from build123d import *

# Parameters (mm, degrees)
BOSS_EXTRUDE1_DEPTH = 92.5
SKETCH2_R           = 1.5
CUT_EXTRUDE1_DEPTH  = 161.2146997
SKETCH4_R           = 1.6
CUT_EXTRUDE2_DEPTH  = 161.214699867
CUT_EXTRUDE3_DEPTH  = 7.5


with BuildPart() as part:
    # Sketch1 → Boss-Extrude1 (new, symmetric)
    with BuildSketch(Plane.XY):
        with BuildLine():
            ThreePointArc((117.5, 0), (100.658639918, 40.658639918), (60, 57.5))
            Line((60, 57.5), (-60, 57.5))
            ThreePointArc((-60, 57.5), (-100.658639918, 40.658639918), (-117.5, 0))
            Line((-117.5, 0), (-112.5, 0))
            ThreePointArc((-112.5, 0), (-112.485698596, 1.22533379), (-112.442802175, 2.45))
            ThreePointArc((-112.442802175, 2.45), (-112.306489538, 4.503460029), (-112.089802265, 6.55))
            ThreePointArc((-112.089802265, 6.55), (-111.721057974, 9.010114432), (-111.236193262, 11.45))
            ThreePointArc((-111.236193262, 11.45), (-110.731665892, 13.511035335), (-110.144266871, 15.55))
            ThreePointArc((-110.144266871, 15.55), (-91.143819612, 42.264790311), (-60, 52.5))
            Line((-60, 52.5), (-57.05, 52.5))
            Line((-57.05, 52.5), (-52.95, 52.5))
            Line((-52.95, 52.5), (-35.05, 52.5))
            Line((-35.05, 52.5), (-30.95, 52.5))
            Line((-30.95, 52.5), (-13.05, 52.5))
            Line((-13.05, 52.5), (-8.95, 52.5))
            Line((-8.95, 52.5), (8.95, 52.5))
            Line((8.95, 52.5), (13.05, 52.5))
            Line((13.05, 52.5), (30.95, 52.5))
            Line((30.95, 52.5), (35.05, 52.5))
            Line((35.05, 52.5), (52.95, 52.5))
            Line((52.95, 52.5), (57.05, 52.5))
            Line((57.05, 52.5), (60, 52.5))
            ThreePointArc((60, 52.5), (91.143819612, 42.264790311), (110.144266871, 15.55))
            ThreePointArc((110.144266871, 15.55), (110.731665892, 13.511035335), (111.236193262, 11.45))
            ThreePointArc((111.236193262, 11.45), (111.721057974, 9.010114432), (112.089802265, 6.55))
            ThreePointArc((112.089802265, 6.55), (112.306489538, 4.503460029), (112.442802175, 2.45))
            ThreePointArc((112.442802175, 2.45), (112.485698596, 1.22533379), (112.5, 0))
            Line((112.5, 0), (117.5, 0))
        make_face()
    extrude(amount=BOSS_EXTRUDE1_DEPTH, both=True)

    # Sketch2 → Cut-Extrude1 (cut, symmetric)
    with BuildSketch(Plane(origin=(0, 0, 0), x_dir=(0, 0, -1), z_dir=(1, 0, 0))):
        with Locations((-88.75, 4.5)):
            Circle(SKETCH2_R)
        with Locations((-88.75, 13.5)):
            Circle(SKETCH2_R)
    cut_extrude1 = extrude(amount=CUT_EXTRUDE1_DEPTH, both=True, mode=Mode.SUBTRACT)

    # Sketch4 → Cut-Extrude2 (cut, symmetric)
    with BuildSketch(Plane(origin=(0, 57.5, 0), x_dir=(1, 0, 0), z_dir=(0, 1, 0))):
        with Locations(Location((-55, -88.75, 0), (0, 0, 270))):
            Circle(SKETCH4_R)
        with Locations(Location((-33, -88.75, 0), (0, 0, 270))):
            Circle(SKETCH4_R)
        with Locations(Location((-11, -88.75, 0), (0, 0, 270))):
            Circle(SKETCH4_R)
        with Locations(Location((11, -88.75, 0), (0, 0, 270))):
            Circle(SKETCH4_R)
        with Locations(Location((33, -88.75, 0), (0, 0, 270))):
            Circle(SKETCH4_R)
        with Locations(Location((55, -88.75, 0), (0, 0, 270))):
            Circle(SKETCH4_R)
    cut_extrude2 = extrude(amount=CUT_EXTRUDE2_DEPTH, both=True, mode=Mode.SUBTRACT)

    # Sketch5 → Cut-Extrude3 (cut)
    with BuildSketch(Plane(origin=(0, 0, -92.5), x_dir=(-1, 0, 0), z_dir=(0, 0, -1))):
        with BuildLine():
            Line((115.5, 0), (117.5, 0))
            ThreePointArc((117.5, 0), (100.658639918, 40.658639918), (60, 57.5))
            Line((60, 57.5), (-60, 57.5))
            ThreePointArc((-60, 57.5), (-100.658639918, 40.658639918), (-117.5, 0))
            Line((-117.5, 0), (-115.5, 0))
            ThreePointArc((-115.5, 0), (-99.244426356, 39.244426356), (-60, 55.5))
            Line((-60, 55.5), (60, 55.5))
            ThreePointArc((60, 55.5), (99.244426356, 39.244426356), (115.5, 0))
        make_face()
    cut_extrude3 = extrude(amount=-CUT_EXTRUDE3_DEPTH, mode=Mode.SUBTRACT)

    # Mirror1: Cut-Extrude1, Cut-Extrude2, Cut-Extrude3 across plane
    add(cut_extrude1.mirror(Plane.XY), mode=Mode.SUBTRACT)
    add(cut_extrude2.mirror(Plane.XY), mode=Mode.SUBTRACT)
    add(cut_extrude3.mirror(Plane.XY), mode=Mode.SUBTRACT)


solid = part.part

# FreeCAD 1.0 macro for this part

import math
import FreeCAD as App
import Part
import Sketcher
Q = App.Units.Quantity

doc = App.newDocument("Part")
body = doc.addObject("PartDesign::Body", "Body")

sketch1 = doc.addObject("Sketcher::SketchObject", "Sketch")
body.addObject(sketch1)
sketch1.AttachmentSupport = (doc.XY_Plane, [""])
sketch1.MapMode = "FlatFace"
sketch1.addGeometry(Part.ArcOfCircle(Part.Circle(App.Vector(60, 0, 0), App.Vector(0, 0, 1), 57.5), math.radians(0), math.radians(90)), False)
sketch1.addGeometry(Part.LineSegment(App.Vector(60, 57.5, 0), App.Vector(-60, 57.5, 0)), False)
sketch1.addGeometry(Part.ArcOfCircle(Part.Circle(App.Vector(-60, 0, 0), App.Vector(0, 0, 1), 57.5), math.radians(90), math.radians(180)), False)
sketch1.addGeometry(Part.LineSegment(App.Vector(-117.5, 0, 0), App.Vector(-112.5, 0, 0)), False)
sketch1.addGeometry(Part.ArcOfCircle(Part.Circle(App.Vector(-60, 0, 0), App.Vector(0, 0, 1), 52.5), math.radians(177.33), math.radians(180)), False)
sketch1.addGeometry(Part.ArcOfCircle(Part.Circle(App.Vector(-60, 0, 0), App.Vector(0, 0, 1), 52.5), math.radians(172.83), math.radians(177.33)), False)
sketch1.addGeometry(Part.ArcOfCircle(Part.Circle(App.Vector(-60, 0, 0), App.Vector(0, 0, 1), 52.5), math.radians(167.4), math.radians(172.83)), False)
sketch1.addGeometry(Part.ArcOfCircle(Part.Circle(App.Vector(-60, 0, 0), App.Vector(0, 0, 1), 52.5), math.radians(162.77), math.radians(167.4)), False)
sketch1.addGeometry(Part.ArcOfCircle(Part.Circle(App.Vector(-60, 0, 0), App.Vector(0, 0, 1), 52.5), math.radians(90), math.radians(163)), False)
sketch1.addGeometry(Part.LineSegment(App.Vector(-60, 52.5, 0), App.Vector(60, 52.5, 0)), False)
sketch1.addGeometry(Part.ArcOfCircle(Part.Circle(App.Vector(60, 0, 0), App.Vector(0, 0, 1), 52.5), math.radians(17), math.radians(90)), False)
sketch1.addGeometry(Part.ArcOfCircle(Part.Circle(App.Vector(60, 0, 0), App.Vector(0, 0, 1), 52.5), math.radians(12.6), math.radians(17.23)), False)
sketch1.addGeometry(Part.ArcOfCircle(Part.Circle(App.Vector(60, 0, 0), App.Vector(0, 0, 1), 52.5), math.radians(7.17), math.radians(12.6)), False)
sketch1.addGeometry(Part.ArcOfCircle(Part.Circle(App.Vector(60, 0, 0), App.Vector(0, 0, 1), 52.5), math.radians(2.67), math.radians(7.17)), False)
sketch1.addGeometry(Part.ArcOfCircle(Part.Circle(App.Vector(60, 0, 0), App.Vector(0, 0, 1), 52.5), math.radians(0), math.radians(2.67)), False)
sketch1.addGeometry(Part.LineSegment(App.Vector(112.5, 0, 0), App.Vector(117.5, 0, 0)), False)
sketch1.addConstraint(Sketcher.Constraint("Tangent", 0, 2, 1, 1))
sketch1.addConstraint(Sketcher.Constraint("Tangent", 1, 2, 2, 1))
sketch1.addConstraint(Sketcher.Constraint("Coincident", 2, 2, 3, 1))
sketch1.addConstraint(Sketcher.Constraint("Coincident", 3, 2, 4, 2))
sketch1.addConstraint(Sketcher.Constraint("Tangent", 4, 1, 5, 2))
sketch1.addConstraint(Sketcher.Constraint("Tangent", 5, 1, 6, 2))
sketch1.addConstraint(Sketcher.Constraint("Tangent", 6, 1, 7, 2))
sketch1.addConstraint(Sketcher.Constraint("Tangent", 7, 1, 8, 2))
sketch1.addConstraint(Sketcher.Constraint("Tangent", 8, 1, 9, 1))
sketch1.addConstraint(Sketcher.Constraint("Tangent", 9, 2, 10, 2))
sketch1.addConstraint(Sketcher.Constraint("Tangent", 10, 1, 11, 2))
sketch1.addConstraint(Sketcher.Constraint("Tangent", 11, 1, 12, 2))
sketch1.addConstraint(Sketcher.Constraint("Tangent", 12, 1, 13, 2))
sketch1.addConstraint(Sketcher.Constraint("Tangent", 13, 1, 14, 2))
sketch1.addConstraint(Sketcher.Constraint("Coincident", 14, 1, 15, 1))
sketch1.addConstraint(Sketcher.Constraint("Coincident", 15, 2, 0, 1))
sketch1.addConstraint(Sketcher.Constraint("Horizontal", 1))
sketch1.addConstraint(Sketcher.Constraint("Horizontal", 3))
sketch1.addConstraint(Sketcher.Constraint("Horizontal", 9))
sketch1.addConstraint(Sketcher.Constraint("Horizontal", 15))
sketch1.addConstraint(Sketcher.Constraint("Coincident", 4, 3, 2, 3))
sketch1.addConstraint(Sketcher.Constraint("Coincident", 6, 3, 2, 3))
sketch1.addConstraint(Sketcher.Constraint("Coincident", 8, 3, 2, 3))
sketch1.addConstraint(Sketcher.Constraint("Coincident", 10, 3, 0, 3))
sketch1.addConstraint(Sketcher.Constraint("Coincident", 12, 3, 0, 3))
sketch1.addConstraint(Sketcher.Constraint("Coincident", 14, 3, 0, 3))
sketch1.addConstraint(Sketcher.Constraint("Equal", 0, 2))
sketch1.addConstraint(Sketcher.Constraint("Symmetric", 0, 3, 2, 3, -1, 1))
sketch1.addConstraint(Sketcher.Constraint("PointOnObject", 2, 2, -1))
sketch1.addConstraint(Sketcher.Constraint("PointOnObject", 14, 1, -1))
sketch1.addConstraint(Sketcher.Constraint("Horizontal", 7, 1, 10, 1))
sketch1.addConstraint(Sketcher.Constraint("Horizontal", 6, 1, 11, 1))
sketch1.addConstraint(Sketcher.Constraint("Horizontal", 5, 1, 12, 1))
sketch1.addConstraint(Sketcher.Constraint("Horizontal", 4, 1, 13, 1))
sketch1.addConstraint(Sketcher.Constraint("Radius", 0, Q("57.5 mm")))
sketch1.addConstraint(Sketcher.Constraint("Radius", 4, Q("52.499999 mm")))
sketch1.addConstraint(Sketcher.Constraint("DistanceX", 1, 2, 1, 1, Q("120 mm")))
sketch1.addConstraint(Sketcher.Constraint("DistanceY", 4, 1, 6, 1, Q("9 mm")))
sketch1.addConstraint(Sketcher.Constraint("DistanceY", 5, 1, 7, 1, Q("9 mm")))
sketch1.addConstraint(Sketcher.Constraint("DistanceY", 4, 1, 5, 1, Q("4.1 mm")))
sketch1.addConstraint(Sketcher.Constraint("DistanceY", -1, 1, 4, 1, Q("2.45 mm")))
pad1 = doc.addObject("PartDesign::Pad", "Pad")
body.addObject(pad1)
pad1.Profile = sketch1
pad1.Length = 185
pad1.Midplane = True

sketch2 = doc.addObject("Sketcher::SketchObject", "Sketch001")
body.addObject(sketch2)
sketch2.AttachmentSupport = (doc.YZ_Plane, [""])
sketch2.MapMode = "FlatFace"
sketch2.addGeometry(Part.Circle(App.Vector(4.5, 88.8, 0), App.Vector(0, 0, 1), 1.5), False)
sketch2.addGeometry(Part.Circle(App.Vector(13.5, 88.8, 0), App.Vector(0, 0, 1), 1.5), False)
sketch2.addConstraint(Sketcher.Constraint("Equal", 0, 1))
sketch2.addConstraint(Sketcher.Constraint("Horizontal", 0, 3, 1, 3))
sketch2.addConstraint(Sketcher.Constraint("Diameter", 0, Q("3 mm")))
sketch2.addConstraint(Sketcher.Constraint("DistanceX", 0, 3, 1, 3, Q("9 mm")))
sketch2.addConstraint(Sketcher.Constraint("DistanceX", -1, 1, 0, 3, Q("4.5 mm")))
sketch2.addConstraint(Sketcher.Constraint("DistanceY", -1, 1, 0, 3, Q("88.75 mm")))
pocket1 = doc.addObject("PartDesign::Pocket", "Pocket")
body.addObject(pocket1)
pocket1.Profile = sketch2
pocket1.Length = 322.429399
pocket1.Midplane = True

sketch3 = doc.addObject("Sketcher::SketchObject", "Sketch002")
body.addObject(sketch3)
sketch3.AttachmentSupport = (doc.XZ_Plane, [""])
sketch3.MapMode = "FlatFace"
sketch3.AttachmentOffset = App.Placement(App.Vector(0, 0, -57.5), App.Rotation())
sketch3.addGeometry(Part.Circle(App.Vector(-55, 88.8, 0), App.Vector(0, 0, 1), 1.6), False)
sketch3.addGeometry(Part.Circle(App.Vector(-33, 88.8, 0), App.Vector(0, 0, 1), 1.6), False)
sketch3.addGeometry(Part.Circle(App.Vector(-11, 88.8, 0), App.Vector(0, 0, 1), 1.6), False)
sketch3.addGeometry(Part.Circle(App.Vector(11, 88.8, 0), App.Vector(0, 0, 1), 1.6), False)
sketch3.addGeometry(Part.Circle(App.Vector(33, 88.8, 0), App.Vector(0, 0, 1), 1.6), False)
sketch3.addGeometry(Part.Circle(App.Vector(55, 88.8, 0), App.Vector(0, 0, 1), 1.6), False)
sketch3.addConstraint(Sketcher.Constraint("Equal", 0, 1))
sketch3.addConstraint(Sketcher.Constraint("Equal", 1, 2))
sketch3.addConstraint(Sketcher.Constraint("Equal", 2, 3))
sketch3.addConstraint(Sketcher.Constraint("Equal", 3, 4))
sketch3.addConstraint(Sketcher.Constraint("Equal", 4, 5))
sketch3.addConstraint(Sketcher.Constraint("Symmetric", 2, 3, 3, 3, -2))
sketch3.addConstraint(Sketcher.Constraint("Symmetric", 1, 3, 4, 3, -2))
sketch3.addConstraint(Sketcher.Constraint("Symmetric", 0, 3, 5, 3, -2))
sketch3.addConstraint(Sketcher.Constraint("Horizontal", 0, 3, 1, 3))
sketch3.addConstraint(Sketcher.Constraint("Horizontal", 1, 3, 2, 3))
sketch3.addConstraint(Sketcher.Constraint("Diameter", 0, Q("3.2 mm")))
sketch3.addConstraint(Sketcher.Constraint("DistanceX", 0, 3, -1, 1, Q("55 mm")))
sketch3.addConstraint(Sketcher.Constraint("DistanceX", 1, 3, -1, 1, Q("33 mm")))
sketch3.addConstraint(Sketcher.Constraint("DistanceX", 2, 3, -1, 1, Q("11 mm")))
sketch3.addConstraint(Sketcher.Constraint("DistanceY", -1, 1, 0, 3, Q("88.75 mm")))
pocket2 = doc.addObject("PartDesign::Pocket", "Pocket001")
body.addObject(pocket2)
pocket2.Profile = sketch3
pocket2.Length = 322.4294
pocket2.Midplane = True

sketch4 = doc.addObject("Sketcher::SketchObject", "Sketch003")
body.addObject(sketch4)
sketch4.AttachmentSupport = (doc.XY_Plane, [""])
sketch4.MapMode = "FlatFace"
sketch4.AttachmentOffset = App.Placement(App.Vector(0, 0, -92.5), App.Rotation())
sketch4.addGeometry(Part.LineSegment(App.Vector(-115.5, 0, 0), App.Vector(-117.5, 0, 0)), False)
sketch4.addGeometry(Part.ArcOfCircle(Part.Circle(App.Vector(-60, 0, 0), App.Vector(0, 0, 1), 57.5), math.radians(90), math.radians(180)), False)
sketch4.addGeometry(Part.LineSegment(App.Vector(-60, 57.5, 0), App.Vector(60, 57.5, 0)), False)
sketch4.addGeometry(Part.ArcOfCircle(Part.Circle(App.Vector(60, 0, 0), App.Vector(0, 0, 1), 57.5), math.radians(0), math.radians(90)), False)
sketch4.addGeometry(Part.LineSegment(App.Vector(117.5, 0, 0), App.Vector(115.5, 0, 0)), False)
sketch4.addGeometry(Part.ArcOfCircle(Part.Circle(App.Vector(60, 0, 0), App.Vector(0, 0, 1), 55.5), math.radians(0), math.radians(90)), False)
sketch4.addGeometry(Part.LineSegment(App.Vector(60, 55.5, 0), App.Vector(-60, 55.5, 0)), False)
sketch4.addGeometry(Part.ArcOfCircle(Part.Circle(App.Vector(-60, 0, 0), App.Vector(0, 0, 1), 55.5), math.radians(90), math.radians(180)), False)
sketch4.addConstraint(Sketcher.Constraint("Coincident", 0, 2, 1, 2))
sketch4.addConstraint(Sketcher.Constraint("Tangent", 1, 1, 2, 1))
sketch4.addConstraint(Sketcher.Constraint("Tangent", 2, 2, 3, 2))
sketch4.addConstraint(Sketcher.Constraint("Coincident", 3, 1, 4, 1))
sketch4.addConstraint(Sketcher.Constraint("Coincident", 4, 2, 5, 1))
sketch4.addConstraint(Sketcher.Constraint("Tangent", 5, 2, 6, 1))
sketch4.addConstraint(Sketcher.Constraint("Tangent", 6, 2, 7, 1))
sketch4.addConstraint(Sketcher.Constraint("Coincident", 7, 2, 0, 1))
sketch4.addConstraint(Sketcher.Constraint("Horizontal", 0))
sketch4.addConstraint(Sketcher.Constraint("Horizontal", 2))
sketch4.addConstraint(Sketcher.Constraint("Horizontal", 4))
sketch4.addConstraint(Sketcher.Constraint("Horizontal", 6))
sketch4.addConstraint(Sketcher.Constraint("Coincident", 5, 3, 3, 3))
sketch4.addConstraint(Sketcher.Constraint("Coincident", 7, 3, 1, 3))
sketch4.addConstraint(Sketcher.Constraint("Equal", 1, 3))
sketch4.addConstraint(Sketcher.Constraint("Symmetric", 1, 3, 3, 3, -1, 1))
sketch4.addConstraint(Sketcher.Constraint("PointOnObject", 0, 2, -1))
sketch4.addConstraint(Sketcher.Constraint("PointOnObject", 3, 1, -1))
sketch4.addConstraint(Sketcher.Constraint("Radius", 1, Q("57.5 mm")))
sketch4.addConstraint(Sketcher.Constraint("Radius", 5, Q("55.5 mm")))
sketch4.addConstraint(Sketcher.Constraint("DistanceX", 2, 1, 2, 2, Q("120 mm")))
pocket3 = doc.addObject("PartDesign::Pocket", "Pocket002")
body.addObject(pocket3)
pocket3.Profile = sketch4
pocket3.Length = 7.5
pocket3.Reversed = True
doc.recompute()

mirrored = doc.addObject("PartDesign::Mirrored", "Mirrored")
body.addObject(mirrored)
mirrored.Originals = [pocket1, pocket2, pocket3]
mirrored.MirrorPlane = (doc.XY_Plane, [""])
body.Tip = mirrored

doc.recompute()
